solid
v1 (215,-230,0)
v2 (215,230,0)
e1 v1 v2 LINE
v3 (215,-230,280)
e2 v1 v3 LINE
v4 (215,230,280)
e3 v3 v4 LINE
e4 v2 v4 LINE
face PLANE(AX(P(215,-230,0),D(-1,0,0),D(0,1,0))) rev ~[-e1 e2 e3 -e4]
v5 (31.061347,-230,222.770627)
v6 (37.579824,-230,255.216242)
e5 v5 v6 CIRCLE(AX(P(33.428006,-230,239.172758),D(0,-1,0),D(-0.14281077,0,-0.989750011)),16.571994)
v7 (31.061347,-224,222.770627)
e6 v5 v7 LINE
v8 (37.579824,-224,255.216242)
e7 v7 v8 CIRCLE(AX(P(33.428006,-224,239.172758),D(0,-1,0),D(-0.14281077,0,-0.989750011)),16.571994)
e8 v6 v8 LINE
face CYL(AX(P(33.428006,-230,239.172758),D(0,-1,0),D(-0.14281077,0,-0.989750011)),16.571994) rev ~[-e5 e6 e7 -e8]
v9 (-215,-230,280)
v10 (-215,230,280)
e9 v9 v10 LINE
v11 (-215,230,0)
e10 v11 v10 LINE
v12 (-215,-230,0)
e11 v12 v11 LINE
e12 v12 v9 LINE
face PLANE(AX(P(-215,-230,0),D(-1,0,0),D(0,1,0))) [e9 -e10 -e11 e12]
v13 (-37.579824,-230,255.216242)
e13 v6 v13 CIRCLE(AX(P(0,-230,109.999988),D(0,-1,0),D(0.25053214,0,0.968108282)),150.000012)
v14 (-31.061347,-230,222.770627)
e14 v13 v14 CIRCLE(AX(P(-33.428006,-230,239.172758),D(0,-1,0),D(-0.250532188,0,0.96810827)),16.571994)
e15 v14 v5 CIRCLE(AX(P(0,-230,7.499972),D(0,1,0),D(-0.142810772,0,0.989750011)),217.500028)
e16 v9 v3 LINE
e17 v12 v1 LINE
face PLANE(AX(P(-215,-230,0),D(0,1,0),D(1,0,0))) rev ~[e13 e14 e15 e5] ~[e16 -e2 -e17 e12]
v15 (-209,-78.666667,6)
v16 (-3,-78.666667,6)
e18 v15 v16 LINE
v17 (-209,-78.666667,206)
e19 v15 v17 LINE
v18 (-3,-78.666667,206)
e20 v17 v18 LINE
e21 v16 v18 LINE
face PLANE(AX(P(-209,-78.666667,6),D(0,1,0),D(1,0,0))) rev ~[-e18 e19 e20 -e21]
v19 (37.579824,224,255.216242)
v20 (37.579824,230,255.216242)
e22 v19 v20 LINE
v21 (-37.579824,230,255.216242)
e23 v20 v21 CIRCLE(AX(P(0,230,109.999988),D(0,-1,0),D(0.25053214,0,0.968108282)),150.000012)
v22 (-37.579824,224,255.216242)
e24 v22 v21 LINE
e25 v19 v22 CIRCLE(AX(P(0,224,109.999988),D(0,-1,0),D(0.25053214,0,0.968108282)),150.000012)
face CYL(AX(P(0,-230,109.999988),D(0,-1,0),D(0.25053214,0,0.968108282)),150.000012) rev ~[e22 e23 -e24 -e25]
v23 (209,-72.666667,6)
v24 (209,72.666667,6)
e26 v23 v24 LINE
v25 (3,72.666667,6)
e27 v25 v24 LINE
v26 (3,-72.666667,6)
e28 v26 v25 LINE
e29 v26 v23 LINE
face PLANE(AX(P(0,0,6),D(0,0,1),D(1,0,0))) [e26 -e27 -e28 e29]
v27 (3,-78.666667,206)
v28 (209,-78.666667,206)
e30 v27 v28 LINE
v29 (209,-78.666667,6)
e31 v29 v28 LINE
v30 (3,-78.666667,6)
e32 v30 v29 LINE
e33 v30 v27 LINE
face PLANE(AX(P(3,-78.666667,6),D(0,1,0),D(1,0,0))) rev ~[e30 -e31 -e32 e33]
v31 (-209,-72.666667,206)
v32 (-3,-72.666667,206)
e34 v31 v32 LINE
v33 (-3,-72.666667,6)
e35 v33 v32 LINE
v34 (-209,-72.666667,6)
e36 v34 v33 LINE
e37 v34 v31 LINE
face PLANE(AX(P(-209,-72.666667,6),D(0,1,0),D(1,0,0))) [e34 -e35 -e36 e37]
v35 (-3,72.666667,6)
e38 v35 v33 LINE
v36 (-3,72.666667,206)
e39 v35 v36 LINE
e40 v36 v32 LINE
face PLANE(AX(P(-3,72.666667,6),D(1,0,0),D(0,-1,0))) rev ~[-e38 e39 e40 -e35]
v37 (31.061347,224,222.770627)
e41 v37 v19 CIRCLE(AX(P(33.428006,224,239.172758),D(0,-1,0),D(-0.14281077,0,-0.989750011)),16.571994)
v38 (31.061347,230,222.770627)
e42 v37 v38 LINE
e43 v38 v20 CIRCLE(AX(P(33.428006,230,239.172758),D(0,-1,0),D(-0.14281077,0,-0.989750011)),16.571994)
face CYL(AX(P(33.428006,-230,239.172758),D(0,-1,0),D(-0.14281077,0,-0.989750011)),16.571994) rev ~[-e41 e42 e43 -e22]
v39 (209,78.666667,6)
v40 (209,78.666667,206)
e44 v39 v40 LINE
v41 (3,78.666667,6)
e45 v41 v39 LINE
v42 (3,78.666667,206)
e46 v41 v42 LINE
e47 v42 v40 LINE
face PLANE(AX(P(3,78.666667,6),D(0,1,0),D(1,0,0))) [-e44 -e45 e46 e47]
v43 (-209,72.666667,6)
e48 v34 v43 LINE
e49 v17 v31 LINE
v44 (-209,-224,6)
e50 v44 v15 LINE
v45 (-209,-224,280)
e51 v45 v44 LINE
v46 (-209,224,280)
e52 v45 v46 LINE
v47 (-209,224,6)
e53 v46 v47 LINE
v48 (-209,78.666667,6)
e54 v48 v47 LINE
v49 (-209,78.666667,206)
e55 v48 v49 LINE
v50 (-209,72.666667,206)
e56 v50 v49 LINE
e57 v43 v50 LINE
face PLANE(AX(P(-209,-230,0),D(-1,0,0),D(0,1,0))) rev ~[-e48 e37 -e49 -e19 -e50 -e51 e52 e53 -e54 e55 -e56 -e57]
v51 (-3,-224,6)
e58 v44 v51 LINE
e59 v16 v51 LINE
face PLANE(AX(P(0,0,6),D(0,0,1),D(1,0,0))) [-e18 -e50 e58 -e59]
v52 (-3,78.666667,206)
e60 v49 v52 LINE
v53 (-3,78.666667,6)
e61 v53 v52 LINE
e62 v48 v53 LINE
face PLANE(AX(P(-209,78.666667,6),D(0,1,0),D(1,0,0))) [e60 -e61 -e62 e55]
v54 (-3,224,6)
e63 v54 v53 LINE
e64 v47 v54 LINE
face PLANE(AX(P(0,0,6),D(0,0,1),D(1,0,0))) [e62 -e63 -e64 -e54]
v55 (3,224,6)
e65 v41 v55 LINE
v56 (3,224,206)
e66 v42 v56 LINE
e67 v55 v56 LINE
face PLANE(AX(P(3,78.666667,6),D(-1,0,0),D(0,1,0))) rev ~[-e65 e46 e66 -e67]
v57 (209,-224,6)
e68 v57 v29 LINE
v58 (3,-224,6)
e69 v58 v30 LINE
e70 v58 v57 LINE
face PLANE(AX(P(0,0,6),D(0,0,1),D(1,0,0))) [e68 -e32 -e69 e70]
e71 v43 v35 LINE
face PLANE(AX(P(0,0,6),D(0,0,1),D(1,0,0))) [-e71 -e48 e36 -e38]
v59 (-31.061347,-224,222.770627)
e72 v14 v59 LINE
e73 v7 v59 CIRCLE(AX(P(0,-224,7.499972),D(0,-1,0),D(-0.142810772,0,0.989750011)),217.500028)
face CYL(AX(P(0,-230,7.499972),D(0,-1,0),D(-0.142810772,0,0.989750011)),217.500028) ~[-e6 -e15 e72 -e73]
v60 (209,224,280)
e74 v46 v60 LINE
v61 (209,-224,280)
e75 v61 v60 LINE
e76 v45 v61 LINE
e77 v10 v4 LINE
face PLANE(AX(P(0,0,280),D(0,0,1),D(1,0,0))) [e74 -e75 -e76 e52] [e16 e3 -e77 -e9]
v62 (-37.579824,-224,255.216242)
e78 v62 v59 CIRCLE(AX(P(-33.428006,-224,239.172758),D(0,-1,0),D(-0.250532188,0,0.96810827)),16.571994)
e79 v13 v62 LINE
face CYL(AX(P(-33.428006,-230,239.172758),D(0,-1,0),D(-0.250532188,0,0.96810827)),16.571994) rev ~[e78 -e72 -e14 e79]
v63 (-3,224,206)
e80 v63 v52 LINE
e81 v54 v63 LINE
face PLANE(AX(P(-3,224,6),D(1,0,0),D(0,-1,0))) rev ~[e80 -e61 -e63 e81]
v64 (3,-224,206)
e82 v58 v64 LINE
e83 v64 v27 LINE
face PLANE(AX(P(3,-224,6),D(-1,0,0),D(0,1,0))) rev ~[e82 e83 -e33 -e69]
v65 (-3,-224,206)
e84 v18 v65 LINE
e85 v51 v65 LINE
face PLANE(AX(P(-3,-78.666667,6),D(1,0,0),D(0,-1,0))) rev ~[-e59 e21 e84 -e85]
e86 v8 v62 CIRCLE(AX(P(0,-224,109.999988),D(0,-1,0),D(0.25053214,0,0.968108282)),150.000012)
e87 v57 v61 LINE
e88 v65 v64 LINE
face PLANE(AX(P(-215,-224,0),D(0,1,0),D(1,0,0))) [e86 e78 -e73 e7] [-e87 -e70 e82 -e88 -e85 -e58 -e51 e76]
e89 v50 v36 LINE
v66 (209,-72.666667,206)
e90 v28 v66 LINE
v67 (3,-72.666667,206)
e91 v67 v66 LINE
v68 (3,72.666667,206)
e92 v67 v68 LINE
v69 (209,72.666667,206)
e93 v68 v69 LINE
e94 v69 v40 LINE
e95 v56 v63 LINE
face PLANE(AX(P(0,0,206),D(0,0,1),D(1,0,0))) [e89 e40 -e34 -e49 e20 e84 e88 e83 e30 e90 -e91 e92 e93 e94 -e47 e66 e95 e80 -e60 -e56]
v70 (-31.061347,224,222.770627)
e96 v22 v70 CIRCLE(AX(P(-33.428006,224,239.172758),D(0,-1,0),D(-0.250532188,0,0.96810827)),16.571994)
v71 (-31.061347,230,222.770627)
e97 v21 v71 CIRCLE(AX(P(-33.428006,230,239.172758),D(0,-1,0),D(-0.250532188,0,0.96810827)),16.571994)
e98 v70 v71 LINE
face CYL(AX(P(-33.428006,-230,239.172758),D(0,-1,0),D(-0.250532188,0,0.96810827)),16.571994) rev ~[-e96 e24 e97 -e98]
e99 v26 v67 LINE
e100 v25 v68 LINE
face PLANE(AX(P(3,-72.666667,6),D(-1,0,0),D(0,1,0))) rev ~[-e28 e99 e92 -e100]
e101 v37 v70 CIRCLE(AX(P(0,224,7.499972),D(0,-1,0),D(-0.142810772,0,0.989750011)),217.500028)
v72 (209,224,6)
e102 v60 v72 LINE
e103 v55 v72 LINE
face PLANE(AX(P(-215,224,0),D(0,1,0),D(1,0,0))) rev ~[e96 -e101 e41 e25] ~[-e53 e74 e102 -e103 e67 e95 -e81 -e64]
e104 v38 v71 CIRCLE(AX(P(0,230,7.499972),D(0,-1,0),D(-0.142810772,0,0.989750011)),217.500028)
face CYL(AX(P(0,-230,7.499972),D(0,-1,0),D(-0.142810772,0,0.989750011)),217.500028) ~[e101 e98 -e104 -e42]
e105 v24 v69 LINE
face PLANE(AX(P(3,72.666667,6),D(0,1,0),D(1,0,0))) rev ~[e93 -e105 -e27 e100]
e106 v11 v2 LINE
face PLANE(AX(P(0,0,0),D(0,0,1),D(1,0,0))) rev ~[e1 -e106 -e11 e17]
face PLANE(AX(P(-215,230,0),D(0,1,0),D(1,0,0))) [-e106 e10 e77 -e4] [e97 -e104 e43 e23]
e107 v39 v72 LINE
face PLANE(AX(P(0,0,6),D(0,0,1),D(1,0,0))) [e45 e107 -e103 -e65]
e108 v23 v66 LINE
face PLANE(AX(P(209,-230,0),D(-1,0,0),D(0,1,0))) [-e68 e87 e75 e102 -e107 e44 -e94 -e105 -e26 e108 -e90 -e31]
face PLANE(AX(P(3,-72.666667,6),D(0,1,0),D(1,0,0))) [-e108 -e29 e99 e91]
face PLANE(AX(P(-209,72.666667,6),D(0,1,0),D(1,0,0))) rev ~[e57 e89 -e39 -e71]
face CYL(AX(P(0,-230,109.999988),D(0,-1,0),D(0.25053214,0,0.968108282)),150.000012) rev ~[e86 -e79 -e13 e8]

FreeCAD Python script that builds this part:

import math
import FreeCAD as App
import Part
import Sketcher

V = App.Vector


def faces_at(feature, points):
    """Names of the faces that lie closest to the given points."""
    faces = feature.Shape.Faces
    near = lambda p: min(range(len(faces)), key=lambda i: faces[i].distToShape(Part.Vertex(*p))[0])
    return sorted({f"Face{near(p) + 1}" for p in points})


def add_polygon(sketch, points):
    """Adds a closed chain of lines whose ends are joined by coincident constraints."""
    first, n = sketch.GeometryCount, len(points)
    for a, b in zip(points, points[1:] + points[:1]):
        sketch.addGeometry(Part.LineSegment(App.Vector(*a, 0), App.Vector(*b, 0)), False)
    for i in range(n):
        sketch.addConstraint(Sketcher.Constraint("Coincident", first + i, 2, first + (i + 1) % n, 1))

doc = App.newDocument("Part")
body = doc.addObject("PartDesign::Body", "Body")

# Sketch on XY plane
sketch1 = body.newObject("Sketcher::SketchObject", "Sketch")
sketch1.AttachmentSupport = (doc.getObject("XY_Plane"), [""])
sketch1.MapMode = "FlatFace"
add_polygon(sketch1, [(-215, 230), (-215, -230), (215, -230), (215, 230)])  # lines 0-3
sketch1.addConstraint([
    Sketcher.Constraint("Vertical", 0),
    Sketcher.Constraint("Horizontal", 1),
    Sketcher.Constraint("Vertical", 2),
    Sketcher.Constraint("Horizontal", 3),
    Sketcher.Constraint("Symmetric", 0, 2, 2, 2, -1, 1),
    Sketcher.Constraint("DistanceX", 1, 1, 1, 2, 430.0),
    Sketcher.Constraint("DistanceY", 0, 2, 0, 1, 460.0),
])
pad1 = body.newObject("PartDesign::Pad", "Pad")
pad1.Profile = sketch1
pad1.Length = 280
doc.recompute()

thickness = body.newObject("PartDesign::Thickness", "Thickness")
thickness.Base = (pad1, faces_at(pad1, [(0, 0, 280)]))
thickness.Value = 6
thickness.Reversed = True
thickness.Join = "Arc"

# Sketch on XZ plane
sketch2 = body.newObject("Sketcher::SketchObject", "Sketch001")
sketch2.AttachmentSupport = (doc.getObject("XZ_Plane"), [""])
sketch2.MapMode = "FlatFace"
sketch2.AttachmentOffset = App.Placement(V(0, 0, 230), App.Rotation())
sketch2.addGeometry([
    Part.ArcOfCircle(Part.Circle(V(33.428006, 239.172758, 0), V(0, 0, 1), 16.571994), math.radians(-98.210526), math.radians(75.490993)),
    Part.ArcOfCircle(Part.Circle(V(0, 109.999988, 0), V(0, 0, 1), 150.000012), math.radians(75.490996), math.radians(104.509004)),
    Part.ArcOfCircle(Part.Circle(V(-33.428006, 239.172758, 0), V(0, 0, 1), 16.571994), math.radians(104.509007), math.radians(278.210526)),
    Part.ArcOfCircle(Part.Circle(V(0, 7.499972, 0), V(0, 0, 1), 217.500028), math.radians(81.789474), math.radians(98.210526)),
], False)
sketch2.addConstraint([
    Sketcher.Constraint("Tangent", 0, 2, 1, 1),
    Sketcher.Constraint("Tangent", 1, 2, 2, 1),
    Sketcher.Constraint("Tangent", 2, 2, 3, 2),
    Sketcher.Constraint("Tangent", 3, 1, 0, 1),
    Sketcher.Constraint("Equal", 0, 2),
    Sketcher.Constraint("Symmetric", 0, 3, 2, 3, -2),
    Sketcher.Constraint("Radius", 1, 150.000012),
    Sketcher.Constraint("Radius", 3, 217.500028),
    Sketcher.Constraint("Radius", 0, 16.571994),
    Sketcher.Constraint("DistanceY", -1, 1, 1, 3, 109.999988),
    Sketcher.Constraint("DistanceY", -1, 1, 3, 3, 7.499972),
])
pocket1 = body.newObject("PartDesign::Pocket", "Pocket")
pocket1.Profile = sketch2
pocket1.Type = "ThroughAll"

# Sketch on XY plane
sketch3 = body.newObject("Sketcher::SketchObject", "Sketch002")
sketch3.AttachmentSupport = (doc.getObject("XY_Plane"), [""])
sketch3.MapMode = "FlatFace"
sketch3.AttachmentOffset = App.Placement(V(0, 0, 6), App.Rotation())
add_polygon(sketch3, [(3, 224), (-3, 224), (-3, 78.666667), (-209, 78.666667), (-209, 72.666667), (-3, 72.666667), (-3, -72.666667), (-209, -72.666667), (-209, -78.666667), (-3, -78.666667), (-3, -224), (3, -224), (3, -78.666667), (209, -78.666667), (209, -72.666667), (3, -72.666667), (3, 72.666667), (209, 72.666667), (209, 78.666667), (3, 78.666667)])  # lines 0-19
sketch3.addConstraint([
    Sketcher.Constraint("Horizontal", 0),
    Sketcher.Constraint("Vertical", 1),
    Sketcher.Constraint("Horizontal", 2),
    Sketcher.Constraint("Vertical", 3),
    Sketcher.Constraint("Horizontal", 4),
    Sketcher.Constraint("Vertical", 5),
    Sketcher.Constraint("Horizontal", 6),
    Sketcher.Constraint("Vertical", 7),
    Sketcher.Constraint("Horizontal", 8),
    Sketcher.Constraint("Vertical", 9),
    Sketcher.Constraint("Horizontal", 10),
    Sketcher.Constraint("Vertical", 11),
    Sketcher.Constraint("Horizontal", 12),
    Sketcher.Constraint("Vertical", 13),
    Sketcher.Constraint("Horizontal", 14),
    Sketcher.Constraint("Vertical", 15),
    Sketcher.Constraint("Horizontal", 16),
    Sketcher.Constraint("Vertical", 17),
    Sketcher.Constraint("Horizontal", 18),
    Sketcher.Constraint("Vertical", 19),
    Sketcher.Constraint("Symmetric", 0, 2, 10, 2, -1, 1),
    Sketcher.Constraint("Symmetric", 2, 2, 12, 2, -1, 1),
    Sketcher.Constraint("Symmetric", 4, 2, 14, 2, -1, 1),
    Sketcher.Constraint("Symmetric", 6, 2, 16, 2, -1, 1),
    Sketcher.Constraint("Symmetric", 8, 2, 18, 2, -1, 1),
    Sketcher.Constraint("Symmetric", 8, 2, 11, 2, -2),
    Sketcher.Constraint("Symmetric", 6, 2, 13, 2, -2),
    Sketcher.Constraint("Vertical", 1, 2, 4, 2),
    Sketcher.Constraint("Equal", 10, 3),
    Sketcher.Constraint("Equal", 1, 5),
    Sketcher.Constraint("DistanceX", 0, 2, 0, 1, 6.0),
    Sketcher.Constraint("DistanceX", 2, 2, 2, 1, 206.0),
    Sketcher.Constraint("DistanceY", -1, 1, 0, 2, 224.0),
])
pad2 = body.newObject("PartDesign::Pad", "Pad001")
pad2.Profile = sketch3
pad2.Length = 200

doc.recompute()
